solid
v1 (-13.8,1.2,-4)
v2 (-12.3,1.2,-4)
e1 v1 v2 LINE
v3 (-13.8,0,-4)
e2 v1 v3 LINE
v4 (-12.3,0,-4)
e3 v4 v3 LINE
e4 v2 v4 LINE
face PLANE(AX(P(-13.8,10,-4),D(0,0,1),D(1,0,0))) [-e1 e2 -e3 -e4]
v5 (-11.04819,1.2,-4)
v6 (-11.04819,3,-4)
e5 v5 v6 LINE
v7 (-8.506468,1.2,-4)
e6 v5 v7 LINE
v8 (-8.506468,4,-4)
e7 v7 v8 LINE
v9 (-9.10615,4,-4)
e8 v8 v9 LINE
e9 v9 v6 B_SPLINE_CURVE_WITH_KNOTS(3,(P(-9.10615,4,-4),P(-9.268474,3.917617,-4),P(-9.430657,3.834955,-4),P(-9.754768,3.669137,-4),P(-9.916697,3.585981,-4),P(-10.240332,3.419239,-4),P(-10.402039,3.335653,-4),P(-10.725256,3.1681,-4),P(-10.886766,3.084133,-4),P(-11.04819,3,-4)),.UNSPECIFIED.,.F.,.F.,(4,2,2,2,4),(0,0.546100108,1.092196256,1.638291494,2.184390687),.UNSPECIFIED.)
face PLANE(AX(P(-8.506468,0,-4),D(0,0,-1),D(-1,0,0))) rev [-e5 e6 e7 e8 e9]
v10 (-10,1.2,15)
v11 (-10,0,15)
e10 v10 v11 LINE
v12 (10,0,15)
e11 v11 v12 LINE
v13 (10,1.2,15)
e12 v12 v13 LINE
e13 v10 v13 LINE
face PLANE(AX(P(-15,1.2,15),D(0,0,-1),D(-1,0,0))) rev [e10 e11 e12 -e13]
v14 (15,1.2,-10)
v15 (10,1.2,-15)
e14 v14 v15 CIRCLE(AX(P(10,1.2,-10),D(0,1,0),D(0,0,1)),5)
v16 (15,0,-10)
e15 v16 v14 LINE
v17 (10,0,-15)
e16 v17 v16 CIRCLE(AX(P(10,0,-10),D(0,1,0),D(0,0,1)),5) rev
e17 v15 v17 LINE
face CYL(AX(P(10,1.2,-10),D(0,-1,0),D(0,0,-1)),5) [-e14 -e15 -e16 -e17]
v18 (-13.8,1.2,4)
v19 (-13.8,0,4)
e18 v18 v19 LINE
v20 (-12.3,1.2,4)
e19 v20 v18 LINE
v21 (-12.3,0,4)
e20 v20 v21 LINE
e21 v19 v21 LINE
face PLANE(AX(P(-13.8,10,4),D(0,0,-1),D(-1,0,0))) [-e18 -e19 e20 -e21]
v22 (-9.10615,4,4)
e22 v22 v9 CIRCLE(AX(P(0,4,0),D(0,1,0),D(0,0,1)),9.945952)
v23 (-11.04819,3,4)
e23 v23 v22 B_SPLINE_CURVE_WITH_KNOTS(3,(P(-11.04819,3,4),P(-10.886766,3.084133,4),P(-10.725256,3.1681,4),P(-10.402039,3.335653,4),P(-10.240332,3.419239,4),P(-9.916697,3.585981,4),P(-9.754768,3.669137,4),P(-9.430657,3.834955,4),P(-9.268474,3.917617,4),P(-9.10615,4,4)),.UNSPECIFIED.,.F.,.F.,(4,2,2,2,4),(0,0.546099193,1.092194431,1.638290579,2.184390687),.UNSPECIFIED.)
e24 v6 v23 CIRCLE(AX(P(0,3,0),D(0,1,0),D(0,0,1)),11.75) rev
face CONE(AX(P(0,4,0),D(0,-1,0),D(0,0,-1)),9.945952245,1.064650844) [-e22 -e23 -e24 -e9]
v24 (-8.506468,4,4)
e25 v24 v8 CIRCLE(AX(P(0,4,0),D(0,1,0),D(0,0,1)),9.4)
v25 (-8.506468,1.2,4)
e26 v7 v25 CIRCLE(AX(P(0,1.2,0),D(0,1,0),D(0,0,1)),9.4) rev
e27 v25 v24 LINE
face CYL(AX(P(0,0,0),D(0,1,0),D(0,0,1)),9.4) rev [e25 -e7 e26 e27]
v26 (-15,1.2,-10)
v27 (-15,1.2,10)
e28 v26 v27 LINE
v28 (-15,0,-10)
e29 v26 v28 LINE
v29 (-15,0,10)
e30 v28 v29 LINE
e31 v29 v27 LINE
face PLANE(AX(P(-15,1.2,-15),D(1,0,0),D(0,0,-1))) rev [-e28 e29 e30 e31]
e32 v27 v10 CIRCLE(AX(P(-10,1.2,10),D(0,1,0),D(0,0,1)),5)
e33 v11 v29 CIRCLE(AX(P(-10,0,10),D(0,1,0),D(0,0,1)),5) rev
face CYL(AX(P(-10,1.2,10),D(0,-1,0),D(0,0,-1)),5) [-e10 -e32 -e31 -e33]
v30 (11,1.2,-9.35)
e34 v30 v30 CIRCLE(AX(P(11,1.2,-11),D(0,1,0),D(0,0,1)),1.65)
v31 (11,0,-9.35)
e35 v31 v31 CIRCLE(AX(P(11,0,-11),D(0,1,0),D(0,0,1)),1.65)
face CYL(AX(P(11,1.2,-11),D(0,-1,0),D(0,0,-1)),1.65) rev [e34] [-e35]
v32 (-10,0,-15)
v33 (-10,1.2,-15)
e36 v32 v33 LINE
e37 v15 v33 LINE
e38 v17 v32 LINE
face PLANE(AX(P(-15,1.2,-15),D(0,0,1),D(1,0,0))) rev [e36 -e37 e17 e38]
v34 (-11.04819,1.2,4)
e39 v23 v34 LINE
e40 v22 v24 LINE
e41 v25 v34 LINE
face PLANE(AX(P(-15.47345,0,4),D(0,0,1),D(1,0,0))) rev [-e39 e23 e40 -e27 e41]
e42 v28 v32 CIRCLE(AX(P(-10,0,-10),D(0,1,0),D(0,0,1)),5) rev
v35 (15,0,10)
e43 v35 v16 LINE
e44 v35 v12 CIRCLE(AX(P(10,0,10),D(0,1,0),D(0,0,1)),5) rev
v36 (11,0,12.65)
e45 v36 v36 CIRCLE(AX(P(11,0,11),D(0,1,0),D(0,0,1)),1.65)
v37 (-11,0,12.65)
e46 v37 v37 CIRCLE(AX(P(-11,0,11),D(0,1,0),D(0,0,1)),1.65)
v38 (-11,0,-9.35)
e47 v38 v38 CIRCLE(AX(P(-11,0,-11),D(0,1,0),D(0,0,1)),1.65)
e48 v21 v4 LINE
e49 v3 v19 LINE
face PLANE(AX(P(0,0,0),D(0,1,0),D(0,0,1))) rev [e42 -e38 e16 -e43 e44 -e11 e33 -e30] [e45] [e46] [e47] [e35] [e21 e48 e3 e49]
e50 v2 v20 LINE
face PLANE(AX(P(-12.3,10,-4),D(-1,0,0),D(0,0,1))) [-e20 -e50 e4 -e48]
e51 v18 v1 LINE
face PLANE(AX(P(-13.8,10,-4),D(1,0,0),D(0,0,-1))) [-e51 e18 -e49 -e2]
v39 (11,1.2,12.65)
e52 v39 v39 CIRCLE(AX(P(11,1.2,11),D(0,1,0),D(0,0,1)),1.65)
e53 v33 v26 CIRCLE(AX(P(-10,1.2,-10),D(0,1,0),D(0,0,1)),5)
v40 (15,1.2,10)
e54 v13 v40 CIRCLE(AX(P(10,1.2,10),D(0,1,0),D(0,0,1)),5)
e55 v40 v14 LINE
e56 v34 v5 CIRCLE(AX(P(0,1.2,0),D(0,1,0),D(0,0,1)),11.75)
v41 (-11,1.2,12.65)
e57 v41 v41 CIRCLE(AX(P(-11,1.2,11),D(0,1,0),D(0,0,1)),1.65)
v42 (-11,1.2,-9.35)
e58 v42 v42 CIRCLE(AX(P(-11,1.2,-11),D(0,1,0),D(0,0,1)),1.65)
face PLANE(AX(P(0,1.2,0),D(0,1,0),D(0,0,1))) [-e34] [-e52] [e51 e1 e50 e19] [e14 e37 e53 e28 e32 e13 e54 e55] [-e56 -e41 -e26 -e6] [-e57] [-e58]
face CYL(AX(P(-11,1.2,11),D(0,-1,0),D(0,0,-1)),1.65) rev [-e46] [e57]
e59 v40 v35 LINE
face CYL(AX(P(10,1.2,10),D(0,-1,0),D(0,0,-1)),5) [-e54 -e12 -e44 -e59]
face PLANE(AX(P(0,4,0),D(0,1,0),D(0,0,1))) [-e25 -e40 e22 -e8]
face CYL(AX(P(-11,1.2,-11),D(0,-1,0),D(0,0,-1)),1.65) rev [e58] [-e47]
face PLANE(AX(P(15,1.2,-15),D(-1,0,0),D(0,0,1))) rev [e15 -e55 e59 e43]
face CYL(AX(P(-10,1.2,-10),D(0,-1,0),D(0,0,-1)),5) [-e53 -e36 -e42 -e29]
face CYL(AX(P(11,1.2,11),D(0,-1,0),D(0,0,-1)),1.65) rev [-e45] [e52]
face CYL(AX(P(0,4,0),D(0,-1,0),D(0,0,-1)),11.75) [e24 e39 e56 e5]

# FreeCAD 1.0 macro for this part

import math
import FreeCAD as App
import Part
import Sketcher
from FreeCAD import Vector
Q = App.Units.Quantity


def edges_at(feature, points):
    """Names of the edges that pass closest to the given points."""
    edges = feature.Shape.Edges
    near = lambda p: min(range(len(edges)), key=lambda i: edges[i].distToShape(Part.Vertex(*p))[0])
    return sorted({f"Edge{near(p) + 1}" for p in points})


def add_polygon(sketch, points):
    """Adds a closed chain of lines whose ends are joined by coincident constraints."""
    first, n = sketch.GeometryCount, len(points)
    for a, b in zip(points, points[1:] + points[:1]):
        sketch.addGeometry(Part.LineSegment(App.Vector(*a, 0), App.Vector(*b, 0)), False)
    for i in range(n):
        sketch.addConstraint(Sketcher.Constraint("Coincident", first + i, 2, first + (i + 1) % n, 1))

doc = App.newDocument("Part")
body = doc.addObject("PartDesign::Body", "Body")

# Sketch on XZ plane
sketch1 = body.newObject("Sketcher::SketchObject", "Sketch")
sketch1.AttachmentSupport = (doc.getObject("XZ_Plane"), [""])
sketch1.MapMode = "FlatFace"
sketch1.addGeometry(Part.Circle(Vector(0, 0, 0), Vector(0, 0, 1), 12), False)
sketch1.addConstraint(Sketcher.Constraint("Coincident", 0, 3, -1, 1))
sketch1.addConstraint(Sketcher.Constraint("Diameter", 0, Q("23.5 mm")))
pad1 = body.newObject("PartDesign::Pad", "Pad")
pad1.Profile = sketch1
pad1.Length = 4
pad1.Reversed = True

# Sketch on XZ plane
sketch2 = body.newObject("Sketcher::SketchObject", "Sketch001")
sketch2.AttachmentSupport = (doc.getObject("XZ_Plane"), [""])
sketch2.MapMode = "FlatFace"
sketch2.AttachmentOffset = App.Placement(Vector(0, 0, -4), App.Rotation())
sketch2.addGeometry(Part.LineSegment(Vector(-9, -4, 0), Vector(-15, -4, 0)), False)
sketch2.addGeometry(Part.LineSegment(Vector(-15, -4, 0), Vector(-15, 4, 0)), False)
sketch2.addGeometry(Part.LineSegment(Vector(-15, 4, 0), Vector(-9, 4, 0)), False)
sketch2.addGeometry(Part.ArcOfCircle(Part.Circle(Vector(0, 0, 0), Vector(0, 0, 1), 9), math.radians(-155), math.radians(155)), False)
sketch2.addConstraint(Sketcher.Constraint("Coincident", 0, 2, 1, 1))
sketch2.addConstraint(Sketcher.Constraint("Coincident", 1, 2, 2, 1))
sketch2.addConstraint(Sketcher.Constraint("Coincident", 2, 2, 3, 2))
sketch2.addConstraint(Sketcher.Constraint("Coincident", 3, 1, 0, 1))
sketch2.addConstraint(Sketcher.Constraint("Horizontal", 0))
sketch2.addConstraint(Sketcher.Constraint("Vertical", 1))
sketch2.addConstraint(Sketcher.Constraint("Horizontal", 2))
sketch2.addConstraint(Sketcher.Constraint("Coincident", 3, 3, -1, 1))
sketch2.addConstraint(Sketcher.Constraint("Vertical", 2, 2, 3, 1))
sketch2.addConstraint(Sketcher.Constraint("Radius", 3, Q("9.4 mm")))
sketch2.addConstraint(Sketcher.Constraint("DistanceY", 1, 1, 1, 2, Q("8 mm")))
sketch2.addConstraint(Sketcher.Constraint("DistanceX", 0, 2, 0, 1, Q("6.966982 mm")))
pocket1 = body.newObject("PartDesign::Pocket", "Pocket")
pocket1.Profile = sketch2
pocket1.Length = 4
pocket1.Reversed = True

# Sketch on XZ plane
sketch3 = body.newObject("Sketcher::SketchObject", "Sketch002")
sketch3.AttachmentSupport = (doc.getObject("XZ_Plane"), [""])
sketch3.MapMode = "FlatFace"
add_polygon(sketch3, [(-15, -15), (-15, 15), (15, 15), (15, -15)])  # lines 0-3
sketch3.addGeometry(Part.Circle(Vector(-11, 11, 0), Vector(0, 0, 1), 1.6), False)  # 4
sketch3.addGeometry(Part.Circle(Vector(11, 11, 0), Vector(0, 0, 1), 1.6), False)  # 5
sketch3.addGeometry(Part.Circle(Vector(-11, -11, 0), Vector(0, 0, 1), 1.6), False)  # 6
sketch3.addGeometry(Part.Circle(Vector(11, -11, 0), Vector(0, 0, 1), 1.6), False)  # 7
sketch3.addConstraint(Sketcher.Constraint("Vertical", 0))
sketch3.addConstraint(Sketcher.Constraint("Horizontal", 1))
sketch3.addConstraint(Sketcher.Constraint("Vertical", 2))
sketch3.addConstraint(Sketcher.Constraint("Horizontal", 3))
sketch3.addConstraint(Sketcher.Constraint("Equal", 4, 5))
sketch3.addConstraint(Sketcher.Constraint("Equal", 5, 6))
sketch3.addConstraint(Sketcher.Constraint("Equal", 6, 7))
sketch3.addConstraint(Sketcher.Constraint("Symmetric", 5, 3, 6, 3, -1, 1))
sketch3.addConstraint(Sketcher.Constraint("Symmetric", 4, 3, 7, 3, -1, 1))
sketch3.addConstraint(Sketcher.Constraint("Symmetric", 0, 2, 2, 2, -1, 1))
sketch3.addConstraint(Sketcher.Constraint("Symmetric", 4, 3, 5, 3, -2))
sketch3.addConstraint(Sketcher.Constraint("Equal", 3, 0))
sketch3.addConstraint(Sketcher.Constraint("Diameter", 4, Q("3.3 mm")))
sketch3.addConstraint(Sketcher.Constraint("DistanceX", 1, 1, 1, 2, Q("30 mm")))
sketch3.addConstraint(Sketcher.Constraint("DistanceX", 4, 3, -1, 1, Q("11 mm")))
sketch3.addConstraint(Sketcher.Constraint("DistanceY", -1, 1, 4, 3, Q("11 mm")))
pad2 = body.newObject("PartDesign::Pad", "Pad001")
pad2.Profile = sketch3
pad2.Length = 1.2
pad2.Reversed = True
doc.recompute()

fillet = body.newObject("PartDesign::Fillet", "Fillet")
fillet.Base = (pad2, edges_at(pad2, [
    (15, 0.6, 15),
    (15, 0.6, -15),
    (-15, 0.6, -15),
    (-15, 0.6, 15),
]))
fillet.Radius = 5

# Sketch on XZ plane
sketch4 = body.newObject("Sketcher::SketchObject", "Sketch003")
sketch4.AttachmentSupport = (doc.getObject("XZ_Plane"), [""])
sketch4.MapMode = "FlatFace"
add_polygon(sketch4, [(-13.8, -4), (-13.8, 4), (-12.3, 4), (-12.3, -4)])  # lines 0-3
sketch4.addConstraint(Sketcher.Constraint("Vertical", 0))
sketch4.addConstraint(Sketcher.Constraint("Horizontal", 1))
sketch4.addConstraint(Sketcher.Constraint("Vertical", 2))
sketch4.addConstraint(Sketcher.Constraint("Horizontal", 3))
sketch4.addConstraint(Sketcher.Constraint("DistanceY", 0, 1, 0, 2, Q("8 mm")))
sketch4.addConstraint(Sketcher.Constraint("DistanceX", 1, 1, 1, 2, Q("1.5 mm")))
sketch4.addConstraint(Sketcher.Constraint("DistanceY", -1, 1, 0, 2, Q("4 mm")))
sketch4.addConstraint(Sketcher.Constraint("DistanceX", 0, 2, -1, 1, Q("13.8 mm")))
pocket2 = body.newObject("PartDesign::Pocket", "Pocket001")
pocket2.Profile = sketch4
pocket2.Length = 10
doc.recompute()

chamfer = body.newObject("PartDesign::Chamfer", "Chamfer")
chamfer.Base = (pocket2, edges_at(pocket2, [(11.75, 4, 0)]))
chamfer.ChamferType = "Two distances"
chamfer.Size = 1
chamfer.Size2 = 1.804048

doc.recompute()
